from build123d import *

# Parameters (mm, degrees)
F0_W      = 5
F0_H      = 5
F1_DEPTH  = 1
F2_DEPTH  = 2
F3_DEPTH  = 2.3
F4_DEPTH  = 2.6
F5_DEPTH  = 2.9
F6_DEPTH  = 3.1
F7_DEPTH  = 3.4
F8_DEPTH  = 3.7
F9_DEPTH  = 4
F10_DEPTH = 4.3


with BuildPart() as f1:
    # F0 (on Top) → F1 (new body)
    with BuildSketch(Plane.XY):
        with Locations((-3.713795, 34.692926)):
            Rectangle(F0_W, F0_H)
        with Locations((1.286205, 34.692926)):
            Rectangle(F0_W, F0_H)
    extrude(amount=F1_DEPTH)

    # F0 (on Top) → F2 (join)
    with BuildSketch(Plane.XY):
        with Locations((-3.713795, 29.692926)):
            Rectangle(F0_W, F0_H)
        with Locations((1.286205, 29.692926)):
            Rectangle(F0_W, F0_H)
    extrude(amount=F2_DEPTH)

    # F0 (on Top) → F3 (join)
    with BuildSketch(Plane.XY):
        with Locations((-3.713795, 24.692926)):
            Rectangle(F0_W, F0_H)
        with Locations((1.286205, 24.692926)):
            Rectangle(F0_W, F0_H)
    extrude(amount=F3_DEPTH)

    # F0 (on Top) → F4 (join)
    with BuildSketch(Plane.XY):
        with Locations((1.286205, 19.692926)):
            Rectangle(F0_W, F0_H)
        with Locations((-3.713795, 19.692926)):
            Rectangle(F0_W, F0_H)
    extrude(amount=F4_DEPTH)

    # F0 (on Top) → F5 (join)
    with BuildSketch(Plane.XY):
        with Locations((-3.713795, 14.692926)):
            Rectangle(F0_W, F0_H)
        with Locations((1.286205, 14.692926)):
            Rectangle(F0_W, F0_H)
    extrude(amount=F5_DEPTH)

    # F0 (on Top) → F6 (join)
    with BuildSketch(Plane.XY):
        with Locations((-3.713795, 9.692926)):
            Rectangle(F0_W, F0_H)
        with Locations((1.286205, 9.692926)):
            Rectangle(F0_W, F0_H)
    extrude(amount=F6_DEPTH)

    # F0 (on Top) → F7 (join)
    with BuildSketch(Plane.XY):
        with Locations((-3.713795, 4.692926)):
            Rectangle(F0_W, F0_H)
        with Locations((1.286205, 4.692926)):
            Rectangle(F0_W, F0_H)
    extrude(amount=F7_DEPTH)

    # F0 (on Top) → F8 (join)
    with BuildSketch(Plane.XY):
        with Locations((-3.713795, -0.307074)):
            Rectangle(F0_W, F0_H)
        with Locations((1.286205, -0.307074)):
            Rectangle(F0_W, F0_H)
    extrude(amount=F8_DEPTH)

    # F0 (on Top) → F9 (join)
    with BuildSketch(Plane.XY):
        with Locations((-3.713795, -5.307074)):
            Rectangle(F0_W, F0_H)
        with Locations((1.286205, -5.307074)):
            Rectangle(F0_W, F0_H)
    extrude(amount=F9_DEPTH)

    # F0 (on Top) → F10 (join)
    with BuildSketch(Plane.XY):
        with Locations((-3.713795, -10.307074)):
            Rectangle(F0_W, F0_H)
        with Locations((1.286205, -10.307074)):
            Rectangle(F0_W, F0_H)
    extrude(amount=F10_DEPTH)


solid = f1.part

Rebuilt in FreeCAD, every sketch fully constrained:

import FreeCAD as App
import Part
import Sketcher

V = App.Vector
Q = App.Units.Quantity


def add_polygon(sketch, points):
    """Adds a closed chain of lines whose ends are joined by coincident constraints."""
    first, n = sketch.GeometryCount, len(points)
    for a, b in zip(points, points[1:] + points[:1]):
        sketch.addGeometry(Part.LineSegment(App.Vector(*a, 0), App.Vector(*b, 0)), False)
    for i in range(n):
        sketch.addConstraint(Sketcher.Constraint("Coincident", first + i, 2, first + (i + 1) % n, 1))

doc = App.newDocument("Part")
params = doc.addObject("Spreadsheet::Sheet", "Params")
for row, (alias, value) in enumerate([
    ("sketch1_width", "10 mm"),
    ("sketch1_height", "5 mm"),
    ("pad1_length", "1 mm"),
    ("sketch2_width", "10 mm"),
    ("sketch2_height", "5 mm"),
    ("pad2_length", "2 mm"),
    ("sketch3_width", "10 mm"),
    ("sketch3_height", "5 mm"),
    ("pad3_length", "2.3 mm"),
    ("sketch4_width", "10 mm"),
    ("sketch4_height", "5 mm"),
    ("pad4_length", "2.6 mm"),
    ("sketch5_width", "10 mm"),
    ("sketch5_height", "5 mm"),
    ("pad5_length", "2.9 mm"),
    ("sketch6_width", "10 mm"),
    ("sketch6_height", "5 mm"),
    ("pad6_length", "3.1 mm"),
    ("sketch7_width", "10 mm"),
    ("sketch7_height", "5 mm"),
    ("pad7_length", "3.4 mm"),
    ("sketch8_width", "10 mm"),
    ("sketch8_height", "5 mm"),
    ("pad8_length", "3.7 mm"),
    ("sketch9_width", "10 mm"),
    ("sketch9_height", "5 mm"),
    ("pad9_length", "4 mm"),
    ("sketch10_width", "10 mm"),
    ("sketch10_height", "5 mm"),
    ("pad10_length", "4.3 mm"),
], start=1):
    params.set(f"A{row}", alias)
    params.set(f"B{row}", "=" + value)
    params.setAlias(f"B{row}", alias)

body = doc.addObject("PartDesign::Body", "Body")

sketch1 = body.newObject("Sketcher::SketchObject", "Sketch")
sketch1.AttachmentSupport = (doc.getObject("XY_Plane"), [""])
sketch1.MapMode = "FlatFace"
add_polygon(sketch1, [(-6, 37), (-6, 32), (4, 32), (4, 37)])
sketch1.addConstraint([
    Sketcher.Constraint("Vertical", 0),
    Sketcher.Constraint("Horizontal", 1),
    Sketcher.Constraint("Vertical", 2),
    Sketcher.Constraint("Horizontal", 3),
    Sketcher.Constraint("DistanceX", 1, 1, 1, 2, Q("10 mm")),
    Sketcher.Constraint("DistanceY", 0, 2, 0, 1, Q("5 mm")),
    Sketcher.Constraint("DistanceX", 0, 2, -1, 1, Q("6.213795 mm")),
    Sketcher.Constraint("DistanceY", -1, 1, 0, 2, Q("32.192926 mm")),
])
sketch1.setExpression("Constraints[8]", "Params.sketch1_width")
sketch1.setExpression("Constraints[9]", "Params.sketch1_height")
pad1 = body.newObject("PartDesign::Pad", "Pad")
pad1.Profile = sketch1
pad1.setExpression("Length", "Params.pad1_length")

sketch2 = body.newObject("Sketcher::SketchObject", "Sketch001")
sketch2.AttachmentSupport = (doc.getObject("XY_Plane"), [""])
sketch2.MapMode = "FlatFace"
add_polygon(sketch2, [(-6, 32), (-6, 27), (4, 27), (4, 32)])
sketch2.addConstraint([
    Sketcher.Constraint("Vertical", 0),
    Sketcher.Constraint("Horizontal", 1),
    Sketcher.Constraint("Vertical", 2),
    Sketcher.Constraint("Horizontal", 3),
    Sketcher.Constraint("DistanceX", 1, 1, 1, 2, Q("10 mm")),
    Sketcher.Constraint("DistanceY", 0, 2, 0, 1, Q("5 mm")),
    Sketcher.Constraint("DistanceX", 0, 2, -1, 1, Q("6.213795 mm")),
    Sketcher.Constraint("DistanceY", -1, 1, 0, 2, Q("27.192926 mm")),
])
sketch2.setExpression("Constraints[8]", "Params.sketch2_width")
sketch2.setExpression("Constraints[9]", "Params.sketch2_height")
pad2 = body.newObject("PartDesign::Pad", "Pad001")
pad2.Profile = sketch2
pad2.setExpression("Length", "Params.pad2_length")

sketch3 = body.newObject("Sketcher::SketchObject", "Sketch002")
sketch3.AttachmentSupport = (doc.getObject("XY_Plane"), [""])
sketch3.MapMode = "FlatFace"
add_polygon(sketch3, [(-6, 27), (-6, 22), (4, 22), (4, 27)])
sketch3.addConstraint([
    Sketcher.Constraint("Vertical", 0),
    Sketcher.Constraint("Horizontal", 1),
    Sketcher.Constraint("Vertical", 2),
    Sketcher.Constraint("Horizontal", 3),
    Sketcher.Constraint("DistanceX", 1, 1, 1, 2, Q("10 mm")),
    Sketcher.Constraint("DistanceY", 0, 2, 0, 1, Q("5 mm")),
    Sketcher.Constraint("DistanceX", 0, 2, -1, 1, Q("6.213795 mm")),
    Sketcher.Constraint("DistanceY", -1, 1, 0, 2, Q("22.192926 mm")),
])
sketch3.setExpression("Constraints[8]", "Params.sketch3_width")
sketch3.setExpression("Constraints[9]", "Params.sketch3_height")
pad3 = body.newObject("PartDesign::Pad", "Pad002")
pad3.Profile = sketch3
pad3.setExpression("Length", "Params.pad3_length")

sketch4 = body.newObject("Sketcher::SketchObject", "Sketch003")
sketch4.AttachmentSupport = (doc.getObject("XY_Plane"), [""])
sketch4.MapMode = "FlatFace"
add_polygon(sketch4, [(4, 17), (4, 22), (-6, 22), (-6, 17)])
sketch4.addConstraint([
    Sketcher.Constraint("Vertical", 0),
    Sketcher.Constraint("Horizontal", 1),
    Sketcher.Constraint("Vertical", 2),
    Sketcher.Constraint("Horizontal", 3),
    Sketcher.Constraint("DistanceX", 1, 2, 1, 1, Q("10 mm")),
    Sketcher.Constraint("DistanceY", 0, 1, 0, 2, Q("5 mm")),
    Sketcher.Constraint("DistanceX", -1, 1, 0, 2, Q("3.786205 mm")),
    Sketcher.Constraint("DistanceY", -1, 1, 0, 2, Q("22.192926 mm")),
])
sketch4.setExpression("Constraints[8]", "Params.sketch4_width")
sketch4.setExpression("Constraints[9]", "Params.sketch4_height")
pad4 = body.newObject("PartDesign::Pad", "Pad003")
pad4.Profile = sketch4
pad4.setExpression("Length", "Params.pad4_length")

sketch5 = body.newObject("Sketcher::SketchObject", "Sketch004")
sketch5.AttachmentSupport = (doc.getObject("XY_Plane"), [""])
sketch5.MapMode = "FlatFace"
add_polygon(sketch5, [(-6, 17), (-6, 12), (4, 12), (4, 17)])
sketch5.addConstraint([
    Sketcher.Constraint("Vertical", 0),
    Sketcher.Constraint("Horizontal", 1),
    Sketcher.Constraint("Vertical", 2),
    Sketcher.Constraint("Horizontal", 3),
    Sketcher.Constraint("DistanceX", 1, 1, 1, 2, Q("10 mm")),
    Sketcher.Constraint("DistanceY", 0, 2, 0, 1, Q("5 mm")),
    Sketcher.Constraint("DistanceX", 0, 2, -1, 1, Q("6.213795 mm")),
    Sketcher.Constraint("DistanceY", -1, 1, 0, 2, Q("12.192926 mm")),
])
sketch5.setExpression("Constraints[8]", "Params.sketch5_width")
sketch5.setExpression("Constraints[9]", "Params.sketch5_height")
pad5 = body.newObject("PartDesign::Pad", "Pad004")
pad5.Profile = sketch5
pad5.setExpression("Length", "Params.pad5_length")

sketch6 = body.newObject("Sketcher::SketchObject", "Sketch005")
sketch6.AttachmentSupport = (doc.getObject("XY_Plane"), [""])
sketch6.MapMode = "FlatFace"
add_polygon(sketch6, [(-6, 12), (-6, 7), (4, 7), (4, 12)])
sketch6.addConstraint([
    Sketcher.Constraint("Vertical", 0),
    Sketcher.Constraint("Horizontal", 1),
    Sketcher.Constraint("Vertical", 2),
    Sketcher.Constraint("Horizontal", 3),
    Sketcher.Constraint("DistanceX", 1, 1, 1, 2, Q("10 mm")),
    Sketcher.Constraint("DistanceY", 0, 2, 0, 1, Q("5 mm")),
    Sketcher.Constraint("DistanceX", 0, 2, -1, 1, Q("6.213795 mm")),
    Sketcher.Constraint("DistanceY", -1, 1, 0, 2, Q("7.192926 mm")),
])
sketch6.setExpression("Constraints[8]", "Params.sketch6_width")
sketch6.setExpression("Constraints[9]", "Params.sketch6_height")
pad6 = body.newObject("PartDesign::Pad", "Pad005")
pad6.Profile = sketch6
pad6.setExpression("Length", "Params.pad6_length")

sketch7 = body.newObject("Sketcher::SketchObject", "Sketch006")
sketch7.AttachmentSupport = (doc.getObject("XY_Plane"), [""])
sketch7.MapMode = "FlatFace"
add_polygon(sketch7, [(-6, 7), (-6, 2), (4, 2), (4, 7)])
sketch7.addConstraint([
    Sketcher.Constraint("Vertical", 0),
    Sketcher.Constraint("Horizontal", 1),
    Sketcher.Constraint("Vertical", 2),
    Sketcher.Constraint("Horizontal", 3),
    Sketcher.Constraint("DistanceX", 1, 1, 1, 2, Q("10 mm")),
    Sketcher.Constraint("DistanceY", 0, 2, 0, 1, Q("5 mm")),
    Sketcher.Constraint("DistanceX", 0, 2, -1, 1, Q("6.213795 mm")),
    Sketcher.Constraint("DistanceY", -1, 1, 0, 2, Q("2.192926 mm")),
])
sketch7.setExpression("Constraints[8]", "Params.sketch7_width")
sketch7.setExpression("Constraints[9]", "Params.sketch7_height")
pad7 = body.newObject("PartDesign::Pad", "Pad006")
pad7.Profile = sketch7
pad7.setExpression("Length", "Params.pad7_length")

sketch8 = body.newObject("Sketcher::SketchObject", "Sketch007")
sketch8.AttachmentSupport = (doc.getObject("XY_Plane"), [""])
sketch8.MapMode = "FlatFace"
add_polygon(sketch8, [(-6, 2), (-6, -3), (4, -3), (4, 2)])
sketch8.addConstraint([
    Sketcher.Constraint("Vertical", 0),
    Sketcher.Constraint("Horizontal", 1),
    Sketcher.Constraint("Vertical", 2),
    Sketcher.Constraint("Horizontal", 3),
    Sketcher.Constraint("DistanceX", 1, 1, 1, 2, Q("10 mm")),
    Sketcher.Constraint("DistanceY", 0, 2, 0, 1, Q("5 mm")),
    Sketcher.Constraint("DistanceX", 0, 2, -1, 1, Q("6.213795 mm")),
    Sketcher.Constraint("DistanceY", 0, 2, -1, 1, Q("2.807074 mm")),
])
sketch8.setExpression("Constraints[8]", "Params.sketch8_width")
sketch8.setExpression("Constraints[9]", "Params.sketch8_height")
pad8 = body.newObject("PartDesign::Pad", "Pad007")
pad8.Profile = sketch8
pad8.setExpression("Length", "Params.pad8_length")

sketch9 = body.newObject("Sketcher::SketchObject", "Sketch008")
sketch9.AttachmentSupport = (doc.getObject("XY_Plane"), [""])
sketch9.MapMode = "FlatFace"
add_polygon(sketch9, [(-6, -3), (-6, -8), (4, -8), (4, -3)])
sketch9.addConstraint([
    Sketcher.Constraint("Vertical", 0),
    Sketcher.Constraint("Horizontal", 1),
    Sketcher.Constraint("Vertical", 2),
    Sketcher.Constraint("Horizontal", 3),
    Sketcher.Constraint("DistanceX", 1, 1, 1, 2, Q("10 mm")),
    Sketcher.Constraint("DistanceY", 0, 2, 0, 1, Q("5 mm")),
    Sketcher.Constraint("DistanceX", 0, 2, -1, 1, Q("6.213795 mm")),
    Sketcher.Constraint("DistanceY", 0, 2, -1, 1, Q("7.807074 mm")),
])
sketch9.setExpression("Constraints[8]", "Params.sketch9_width")
sketch9.setExpression("Constraints[9]", "Params.sketch9_height")
pad9 = body.newObject("PartDesign::Pad", "Pad008")
pad9.Profile = sketch9
pad9.setExpression("Length", "Params.pad9_length")

sketch10 = body.newObject("Sketcher::SketchObject", "Sketch009")
sketch10.AttachmentSupport = (doc.getObject("XY_Plane"), [""])
sketch10.MapMode = "FlatFace"
add_polygon(sketch10, [(-6, -8), (-6, -13), (4, -13), (4, -8)])
sketch10.addConstraint([
    Sketcher.Constraint("Vertical", 0),
    Sketcher.Constraint("Horizontal", 1),
    Sketcher.Constraint("Vertical", 2),
    Sketcher.Constraint("Horizontal", 3),
    Sketcher.Constraint("DistanceX", 1, 1, 1, 2, Q("10 mm")),
    Sketcher.Constraint("DistanceY", 0, 2, 0, 1, Q("5 mm")),
    Sketcher.Constraint("DistanceX", 0, 2, -1, 1, Q("6.213795 mm")),
    Sketcher.Constraint("DistanceY", 0, 2, -1, 1, Q("12.807074 mm")),
])
sketch10.setExpression("Constraints[8]", "Params.sketch10_width")
sketch10.setExpression("Constraints[9]", "Params.sketch10_height")
pad10 = body.newObject("PartDesign::Pad", "Pad009")
pad10.Profile = sketch10
pad10.setExpression("Length", "Params.pad10_length")

doc.recompute()
